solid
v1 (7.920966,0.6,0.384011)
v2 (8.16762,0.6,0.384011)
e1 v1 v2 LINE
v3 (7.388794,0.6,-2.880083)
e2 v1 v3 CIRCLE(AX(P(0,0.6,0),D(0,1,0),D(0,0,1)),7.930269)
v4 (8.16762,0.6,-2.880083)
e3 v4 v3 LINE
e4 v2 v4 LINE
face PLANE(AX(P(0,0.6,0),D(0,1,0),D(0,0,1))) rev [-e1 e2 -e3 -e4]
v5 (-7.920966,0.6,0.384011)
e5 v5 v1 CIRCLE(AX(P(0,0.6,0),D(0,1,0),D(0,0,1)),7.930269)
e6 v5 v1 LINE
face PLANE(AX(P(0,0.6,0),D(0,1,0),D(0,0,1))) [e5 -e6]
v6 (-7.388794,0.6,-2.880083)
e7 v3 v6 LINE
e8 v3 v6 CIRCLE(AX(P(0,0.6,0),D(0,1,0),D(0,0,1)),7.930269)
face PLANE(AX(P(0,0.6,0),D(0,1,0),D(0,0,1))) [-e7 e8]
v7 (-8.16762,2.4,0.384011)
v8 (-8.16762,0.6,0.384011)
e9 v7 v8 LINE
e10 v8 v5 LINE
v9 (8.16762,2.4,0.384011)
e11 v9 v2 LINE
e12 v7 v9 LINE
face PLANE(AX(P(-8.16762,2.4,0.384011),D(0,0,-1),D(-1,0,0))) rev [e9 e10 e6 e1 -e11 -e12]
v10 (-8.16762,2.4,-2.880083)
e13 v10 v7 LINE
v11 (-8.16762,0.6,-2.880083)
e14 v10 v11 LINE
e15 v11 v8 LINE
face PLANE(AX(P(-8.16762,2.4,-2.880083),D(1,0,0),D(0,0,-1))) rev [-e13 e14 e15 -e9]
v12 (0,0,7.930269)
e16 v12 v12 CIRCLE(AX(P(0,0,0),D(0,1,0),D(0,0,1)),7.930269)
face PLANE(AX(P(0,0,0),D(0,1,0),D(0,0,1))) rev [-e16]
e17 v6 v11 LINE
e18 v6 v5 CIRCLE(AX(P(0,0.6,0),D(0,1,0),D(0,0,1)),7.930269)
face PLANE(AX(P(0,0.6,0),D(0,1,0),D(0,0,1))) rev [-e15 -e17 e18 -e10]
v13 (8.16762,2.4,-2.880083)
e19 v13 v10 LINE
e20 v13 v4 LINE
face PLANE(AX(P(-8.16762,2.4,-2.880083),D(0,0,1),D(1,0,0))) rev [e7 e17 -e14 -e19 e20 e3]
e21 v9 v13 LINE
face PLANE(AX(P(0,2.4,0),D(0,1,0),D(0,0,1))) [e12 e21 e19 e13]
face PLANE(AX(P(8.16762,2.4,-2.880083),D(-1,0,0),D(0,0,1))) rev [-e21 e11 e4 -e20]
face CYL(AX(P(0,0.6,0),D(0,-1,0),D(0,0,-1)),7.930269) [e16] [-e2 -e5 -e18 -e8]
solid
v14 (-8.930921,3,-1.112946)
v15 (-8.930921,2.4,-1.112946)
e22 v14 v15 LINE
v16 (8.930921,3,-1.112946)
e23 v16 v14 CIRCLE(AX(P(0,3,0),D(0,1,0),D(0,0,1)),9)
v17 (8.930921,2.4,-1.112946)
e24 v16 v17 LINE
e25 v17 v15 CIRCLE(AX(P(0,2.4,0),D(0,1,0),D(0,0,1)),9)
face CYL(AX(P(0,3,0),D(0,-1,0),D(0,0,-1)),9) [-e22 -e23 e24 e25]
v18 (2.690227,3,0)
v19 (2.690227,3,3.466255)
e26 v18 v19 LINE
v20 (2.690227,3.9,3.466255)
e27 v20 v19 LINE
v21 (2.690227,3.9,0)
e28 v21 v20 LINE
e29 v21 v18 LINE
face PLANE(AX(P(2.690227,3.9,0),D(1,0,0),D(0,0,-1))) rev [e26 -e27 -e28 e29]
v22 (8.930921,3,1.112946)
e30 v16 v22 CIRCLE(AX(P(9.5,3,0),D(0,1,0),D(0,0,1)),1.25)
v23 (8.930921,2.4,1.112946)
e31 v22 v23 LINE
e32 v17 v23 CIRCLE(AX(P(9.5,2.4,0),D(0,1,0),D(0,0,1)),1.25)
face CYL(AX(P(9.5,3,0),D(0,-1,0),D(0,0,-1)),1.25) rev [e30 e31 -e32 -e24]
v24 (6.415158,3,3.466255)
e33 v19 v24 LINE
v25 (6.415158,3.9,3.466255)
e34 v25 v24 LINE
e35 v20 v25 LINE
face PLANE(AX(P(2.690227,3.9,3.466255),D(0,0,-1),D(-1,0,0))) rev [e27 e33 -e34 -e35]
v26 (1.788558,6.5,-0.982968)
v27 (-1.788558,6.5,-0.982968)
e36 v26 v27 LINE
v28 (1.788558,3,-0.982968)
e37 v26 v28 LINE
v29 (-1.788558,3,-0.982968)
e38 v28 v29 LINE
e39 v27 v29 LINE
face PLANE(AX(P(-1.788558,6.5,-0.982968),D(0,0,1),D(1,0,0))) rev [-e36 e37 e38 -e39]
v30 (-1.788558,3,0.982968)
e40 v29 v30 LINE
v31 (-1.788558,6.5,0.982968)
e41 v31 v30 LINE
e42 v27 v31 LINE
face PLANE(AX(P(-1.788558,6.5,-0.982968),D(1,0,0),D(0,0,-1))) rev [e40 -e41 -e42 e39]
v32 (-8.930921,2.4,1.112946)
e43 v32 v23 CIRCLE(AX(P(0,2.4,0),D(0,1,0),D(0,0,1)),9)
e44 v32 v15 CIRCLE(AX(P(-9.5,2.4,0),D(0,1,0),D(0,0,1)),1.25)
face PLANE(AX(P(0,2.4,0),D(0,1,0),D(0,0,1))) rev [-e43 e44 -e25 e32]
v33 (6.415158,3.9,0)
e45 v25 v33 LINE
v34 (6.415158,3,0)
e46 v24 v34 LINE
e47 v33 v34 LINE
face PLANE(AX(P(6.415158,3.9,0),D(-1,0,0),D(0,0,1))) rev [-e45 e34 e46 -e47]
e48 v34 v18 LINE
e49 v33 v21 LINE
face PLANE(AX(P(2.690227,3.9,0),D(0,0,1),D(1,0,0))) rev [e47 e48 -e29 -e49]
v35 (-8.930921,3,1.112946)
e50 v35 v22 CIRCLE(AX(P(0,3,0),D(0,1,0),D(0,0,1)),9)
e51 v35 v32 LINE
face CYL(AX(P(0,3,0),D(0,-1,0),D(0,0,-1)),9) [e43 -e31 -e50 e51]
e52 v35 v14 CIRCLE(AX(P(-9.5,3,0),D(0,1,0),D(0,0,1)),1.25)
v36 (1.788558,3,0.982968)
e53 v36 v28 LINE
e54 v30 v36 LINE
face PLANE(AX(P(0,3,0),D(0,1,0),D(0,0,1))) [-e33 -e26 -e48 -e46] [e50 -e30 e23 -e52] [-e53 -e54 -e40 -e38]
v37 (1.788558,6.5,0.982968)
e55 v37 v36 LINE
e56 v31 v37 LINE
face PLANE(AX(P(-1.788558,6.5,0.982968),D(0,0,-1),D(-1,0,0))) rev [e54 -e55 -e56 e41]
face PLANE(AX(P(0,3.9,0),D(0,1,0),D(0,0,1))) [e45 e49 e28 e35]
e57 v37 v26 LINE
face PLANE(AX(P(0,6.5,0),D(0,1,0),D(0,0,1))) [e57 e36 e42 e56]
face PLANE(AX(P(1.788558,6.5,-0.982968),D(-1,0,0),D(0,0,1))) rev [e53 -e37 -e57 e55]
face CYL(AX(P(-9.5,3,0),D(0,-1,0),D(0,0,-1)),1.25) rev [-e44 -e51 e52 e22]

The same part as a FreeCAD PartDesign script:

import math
import FreeCAD as App
import Part
import Sketcher
Q = App.Units.Quantity


def add_polygon(sketch, points):
    """Adds a closed chain of lines whose ends are joined by coincident constraints."""
    first, n = sketch.GeometryCount, len(points)
    for a, b in zip(points, points[1:] + points[:1]):
        sketch.addGeometry(Part.LineSegment(App.Vector(*a, 0), App.Vector(*b, 0)), False)
    for i in range(n):
        sketch.addConstraint(Sketcher.Constraint("Coincident", first + i, 2, first + (i + 1) % n, 1))

doc = App.newDocument("Part")
params = doc.addObject("Spreadsheet::Sheet", "Params")
for row, (alias, value) in enumerate([
    ("pad1_length", "0.6 mm"),
    ("pad2_length", "1.8 mm"),
    ("sketch3_radius", "9 mm"),
    ("sketch3_radius2", "1.25 mm"),
    ("pad3_length", "0.6 mm"),
    ("pad4_length", "0.9 mm"),
    ("pad5_length", "3.5 mm"),
], start=1):
    params.set(f"A{row}", alias)
    params.set(f"B{row}", "=" + value)
    params.setAlias(f"B{row}", alias)

body = doc.addObject("PartDesign::Body", "Body")

# Sketch on XZ plane
sketch1 = body.newObject("Sketcher::SketchObject", "Sketch")
sketch1.AttachmentSupport = (doc.getObject("XZ_Plane"), [""])
sketch1.MapMode = "FlatFace"
sketch1.addGeometry(Part.Circle(App.Vector(0, 0, 0), App.Vector(0, 0, 1), 7.930269), False)
sketch1.addConstraint([
    Sketcher.Constraint("Coincident", 0, 3, -1, 1),
    Sketcher.Constraint("Diameter", 0, Q("15.860537 mm")),
])
pad1 = body.newObject("PartDesign::Pad", "Pad")
pad1.Profile = sketch1
pad1.setExpression("Length", "Params.pad1_length")
pad1.Reversed = True

# Sketch on XZ plane
sketch2 = body.newObject("Sketcher::SketchObject", "Sketch001")
sketch2.AttachmentSupport = (doc.getObject("XZ_Plane"), [""])
sketch2.MapMode = "FlatFace"
sketch2.AttachmentOffset = App.Placement(App.Vector(0, 0, -0.6), App.Rotation())
add_polygon(sketch2, [(-8.16762, -2.880083), (-8.16762, 0.384011), (8.16762, 0.384011), (8.16762, -2.880083)])  # lines 0-3
sketch2.addConstraint([
    Sketcher.Constraint("Vertical", 0),
    Sketcher.Constraint("Horizontal", 1),
    Sketcher.Constraint("Vertical", 2),
    Sketcher.Constraint("Horizontal", 3),
    Sketcher.Constraint("DistanceX", 1, 1, 1, 2, Q("16.335241 mm")),
    Sketcher.Constraint("DistanceY", 0, 1, 0, 2, Q("3.264094 mm")),
    Sketcher.Constraint("DistanceX", 0, 2, -1, 1, Q("8.16762 mm")),
    Sketcher.Constraint("DistanceY", -1, 1, 0, 2, Q("0.384011 mm")),
])
pad2 = body.newObject("PartDesign::Pad", "Pad001")
pad2.Profile = sketch2
pad2.setExpression("Length", "Params.pad2_length")
pad2.Reversed = True
body2 = doc.addObject("PartDesign::Body", "Body001")

# Sketch on XZ plane
sketch3 = body2.newObject("Sketcher::SketchObject", "Sketch002")
sketch3.AttachmentSupport = (doc.getObject("XZ_Plane001"), [""])
sketch3.MapMode = "FlatFace"
sketch3.AttachmentOffset = App.Placement(App.Vector(0, 0, -2.4), App.Rotation())
sketch3.addGeometry([
    Part.ArcOfCircle(Part.Circle(App.Vector(9.5, 0, 0), App.Vector(0, 0, 1), 1.25), math.radians(117.081868), math.radians(242.918132)),  # 0
    Part.ArcOfCircle(Part.Circle(App.Vector(0, 0, 0), App.Vector(0, 0, 1), 9), math.radians(-172.896581), math.radians(-7.103419)),  # 1
    Part.ArcOfCircle(Part.Circle(App.Vector(-9.5, 0, 0), App.Vector(0, 0, 1), 1.25), math.radians(-62.918133), math.radians(0)),  # 2
    Part.ArcOfCircle(Part.Circle(App.Vector(-9.5, 0, 0), App.Vector(0, 0, 1), 1.25), math.radians(0), math.radians(62.918133)),  # 3
    Part.ArcOfCircle(Part.Circle(App.Vector(0, 0, 0), App.Vector(0, 0, 1), 9), math.radians(7.103419), math.radians(172.896581)),  # 4
], False)
sketch3.addConstraint([
    Sketcher.Constraint("Coincident", 0, 2, 1, 2),
    Sketcher.Constraint("Coincident", 1, 1, 2, 1),
    Sketcher.Constraint("Tangent", 2, 2, 3, 1),
    Sketcher.Constraint("Coincident", 3, 2, 4, 2),
    Sketcher.Constraint("Coincident", 4, 1, 0, 1),
    Sketcher.Constraint("Coincident", 1, 3, -1, 1),
    Sketcher.Constraint("Coincident", 4, 3, -1, 1),
    Sketcher.Constraint("Equal", 0, 2),
    Sketcher.Constraint("Equal", 2, 3),
    Sketcher.Constraint("Equal", 1, 4),
    Sketcher.Constraint("Symmetric", 0, 3, 2, 3, -1, 1),
    Sketcher.Constraint("PointOnObject", 0, 3, -1),
    Sketcher.Constraint("PointOnObject", 2, 2, -1),
    Sketcher.Constraint("Radius", 1, Q("9 mm")),
    Sketcher.Constraint("Radius", 0, Q("1.25 mm")),
    Sketcher.Constraint("DistanceX", 2, 3, 0, 3, Q("19 mm")),
])
sketch3.setExpression("Constraints[13]", "Params.sketch3_radius")
sketch3.setExpression("Constraints[14]", "Params.sketch3_radius2")
pad3 = body2.newObject("PartDesign::Pad", "Pad002")
pad3.Profile = sketch3
pad3.setExpression("Length", "Params.pad3_length")
pad3.Reversed = True

# Sketch on XZ plane
sketch4 = body2.newObject("Sketcher::SketchObject", "Sketch003")
sketch4.AttachmentSupport = (doc.getObject("XZ_Plane001"), [""])
sketch4.MapMode = "FlatFace"
sketch4.AttachmentOffset = App.Placement(App.Vector(0, 0, -3), App.Rotation())
add_polygon(sketch4, [(2.690227, 0), (2.690227, 3.466255), (6.415158, 3.466255), (6.415158, 0)])  # lines 0-3
sketch4.addConstraint([
    Sketcher.Constraint("Vertical", 0),
    Sketcher.Constraint("Horizontal", 1),
    Sketcher.Constraint("Vertical", 2),
    Sketcher.Constraint("Horizontal", 3),
    Sketcher.Constraint("PointOnObject", 2, 2, -1),
    Sketcher.Constraint("DistanceX", 1, 1, 1, 2, Q("3.72493 mm")),
    Sketcher.Constraint("DistanceY", 0, 1, 0, 2, Q("3.466255 mm")),
    Sketcher.Constraint("DistanceX", -1, 1, 0, 2, Q("2.690227 mm")),
])
pad4 = body2.newObject("PartDesign::Pad", "Pad003")
pad4.Profile = sketch4
pad4.setExpression("Length", "Params.pad4_length")
pad4.Reversed = True

# Sketch on XZ plane
sketch5 = body2.newObject("Sketcher::SketchObject", "Sketch004")
sketch5.AttachmentSupport = (doc.getObject("XZ_Plane001"), [""])
sketch5.MapMode = "FlatFace"
sketch5.AttachmentOffset = App.Placement(App.Vector(0, 0, -3), App.Rotation())
add_polygon(sketch5, [(-1.788558, -0.982968), (-1.788558, 0.982968), (1.788558, 0.982968), (1.788558, -0.982968)])  # lines 0-3
sketch5.addConstraint([
    Sketcher.Constraint("Vertical", 0),
    Sketcher.Constraint("Horizontal", 1),
    Sketcher.Constraint("Vertical", 2),
    Sketcher.Constraint("Horizontal", 3),
    Sketcher.Constraint("Symmetric", 0, 2, 2, 2, -1, 1),
    Sketcher.Constraint("DistanceX", 1, 1, 1, 2, Q("3.577116 mm")),
    Sketcher.Constraint("DistanceY", 0, 1, 0, 2, Q("1.965935 mm")),
])
pad5 = body2.newObject("PartDesign::Pad", "Pad004")
pad5.Profile = sketch5
pad5.setExpression("Length", "Params.pad5_length")
pad5.Reversed = True

doc.recompute()
